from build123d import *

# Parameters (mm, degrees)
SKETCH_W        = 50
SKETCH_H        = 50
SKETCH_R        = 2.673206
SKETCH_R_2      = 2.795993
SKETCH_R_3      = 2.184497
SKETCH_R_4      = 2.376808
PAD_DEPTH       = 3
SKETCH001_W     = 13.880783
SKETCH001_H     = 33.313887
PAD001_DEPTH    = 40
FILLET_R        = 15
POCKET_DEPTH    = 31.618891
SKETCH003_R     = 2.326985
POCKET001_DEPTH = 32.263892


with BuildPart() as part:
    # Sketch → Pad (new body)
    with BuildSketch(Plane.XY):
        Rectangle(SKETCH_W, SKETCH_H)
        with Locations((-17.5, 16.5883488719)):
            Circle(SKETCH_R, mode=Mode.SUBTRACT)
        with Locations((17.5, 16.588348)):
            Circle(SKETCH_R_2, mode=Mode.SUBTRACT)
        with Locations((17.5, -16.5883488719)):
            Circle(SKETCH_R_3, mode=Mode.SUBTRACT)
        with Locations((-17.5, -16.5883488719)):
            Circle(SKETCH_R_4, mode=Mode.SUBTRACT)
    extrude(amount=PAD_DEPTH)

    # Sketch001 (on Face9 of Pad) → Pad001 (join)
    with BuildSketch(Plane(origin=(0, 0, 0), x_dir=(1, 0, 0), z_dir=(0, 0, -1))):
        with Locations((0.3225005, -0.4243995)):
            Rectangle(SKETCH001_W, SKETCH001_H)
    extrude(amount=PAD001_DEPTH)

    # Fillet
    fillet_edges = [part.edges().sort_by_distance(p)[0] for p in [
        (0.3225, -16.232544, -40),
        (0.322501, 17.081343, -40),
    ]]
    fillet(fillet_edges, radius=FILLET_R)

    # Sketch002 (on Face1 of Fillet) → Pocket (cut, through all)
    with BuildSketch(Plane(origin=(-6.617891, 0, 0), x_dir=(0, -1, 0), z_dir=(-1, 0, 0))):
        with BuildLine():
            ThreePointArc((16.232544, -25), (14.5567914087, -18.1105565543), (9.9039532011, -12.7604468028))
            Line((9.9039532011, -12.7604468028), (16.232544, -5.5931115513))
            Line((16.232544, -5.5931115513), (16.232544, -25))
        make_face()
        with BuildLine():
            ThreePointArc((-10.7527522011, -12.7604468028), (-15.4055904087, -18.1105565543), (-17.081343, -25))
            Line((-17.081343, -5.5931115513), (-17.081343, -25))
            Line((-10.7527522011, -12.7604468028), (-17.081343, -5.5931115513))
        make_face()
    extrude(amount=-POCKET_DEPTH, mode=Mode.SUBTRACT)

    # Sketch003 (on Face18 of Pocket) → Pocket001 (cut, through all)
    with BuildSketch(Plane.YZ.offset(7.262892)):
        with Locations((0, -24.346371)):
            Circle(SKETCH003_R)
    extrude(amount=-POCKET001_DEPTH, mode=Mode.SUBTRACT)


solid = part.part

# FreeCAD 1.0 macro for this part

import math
import FreeCAD as App
import Part
import Sketcher
from FreeCAD import Vector
Q = App.Units.Quantity


def edges_at(feature, points):
    """Names of the edges that pass closest to the given points."""
    edges = feature.Shape.Edges
    near = lambda p: min(range(len(edges)), key=lambda i: edges[i].distToShape(Part.Vertex(*p))[0])
    return sorted({f"Edge{near(p) + 1}" for p in points})

doc = App.newDocument("Part")
params = doc.addObject("Spreadsheet::Sheet", "Params")
for row, (alias, value) in enumerate([
    ("sketch1_width", "50 mm"),
    ("pad1_length", "3 mm"),
    ("pad2_length", "40 mm"),
    ("fillet_radius", "15 mm"),
    ("sketch3_radius", "15 mm"),
], start=1):
    params.set(f"A{row}", alias)
    params.set(f"B{row}", "=" + value)
    params.setAlias(f"B{row}", alias)

body = doc.addObject("PartDesign::Body", "Body")

# Sketch on XY plane
sketch1 = body.newObject("Sketcher::SketchObject", "Sketch")
sketch1.AttachmentSupport = (doc.getObject("XY_Plane"), [""])
sketch1.MapMode = "FlatFace"
sketch1.addGeometry([
    Part.LineSegment(Vector(-25, 25, 0), Vector(-25, -25, 0)),  # 0
    Part.LineSegment(Vector(-25, -25, 0), Vector(25, -25, 0)),  # 1
    Part.LineSegment(Vector(25, -25, 0), Vector(25, 25, 0)),  # 2
    Part.LineSegment(Vector(25, 25, 0), Vector(-25, 25, 0)),  # 3
    Part.Circle(Vector(-17.5, -16.6, 0), Vector(0, 0, 1), 2.4),  # 4
    Part.Circle(Vector(17.5, -16.6, 0), Vector(0, 0, 1), 2.2),  # 5
    Part.Circle(Vector(-17.5, 16.6, 0), Vector(0, 0, 1), 2.7),  # 6
    Part.Circle(Vector(17.5, 16.6, 0), Vector(0, 0, 1), 2.8),  # 7
], False)
sketch1.addConstraint([
    Sketcher.Constraint("Coincident", 0, 2, 1, 1),
    Sketcher.Constraint("Coincident", 1, 2, 2, 1),
    Sketcher.Constraint("Coincident", 2, 2, 3, 1),
    Sketcher.Constraint("Coincident", 3, 2, 0, 1),
    Sketcher.Constraint("Vertical", 0),
    Sketcher.Constraint("Horizontal", 1),
    Sketcher.Constraint("Vertical", 2),
    Sketcher.Constraint("Horizontal", 3),
    Sketcher.Constraint("Symmetric", 5, 3, 6, 3, -1, 1),
    Sketcher.Constraint("Symmetric", 4, 3, 7, 3, -1, 1),
    Sketcher.Constraint("Symmetric", 0, 2, 2, 2, -1, 1),
    Sketcher.Constraint("Symmetric", 4, 3, 5, 3, -2),
    Sketcher.Constraint("Equal", 3, 0),
    Sketcher.Constraint("DistanceX", 1, 1, 1, 2, Q("50 mm")),
    Sketcher.Constraint("DistanceX", 4, 3, 5, 3, Q("35 mm")),
    Sketcher.Constraint("Diameter", 4, Q("4.753616 mm")),
    Sketcher.Constraint("Diameter", 5, Q("4.368994 mm")),
    Sketcher.Constraint("Diameter", 6, Q("5.346412 mm")),
    Sketcher.Constraint("Diameter", 7, Q("5.591986 mm")),
    Sketcher.Constraint("DistanceY", 4, 3, -1, 1, Q("16.588349 mm")),
])
sketch1.setExpression("Constraints[13]", "Params.sketch1_width")
pad1 = body.newObject("PartDesign::Pad", "Pad")
pad1.Profile = sketch1
pad1.setExpression("Length", "Params.pad1_length")

# Sketch on XY plane
sketch2 = body.newObject("Sketcher::SketchObject", "Sketch001")
sketch2.AttachmentSupport = (doc.getObject("XY_Plane"), [""])
sketch2.MapMode = "FlatFace"
sketch2.addGeometry([
    Part.LineSegment(Vector(-7, -16, 0), Vector(-7, 17, 0)),
    Part.LineSegment(Vector(-7, 17, 0), Vector(7, 17, 0)),
    Part.LineSegment(Vector(7, 17, 0), Vector(7, -16, 0)),
    Part.LineSegment(Vector(7, -16, 0), Vector(-7, -16, 0)),
], False)
sketch2.addConstraint([
    Sketcher.Constraint("Coincident", 0, 2, 1, 1),
    Sketcher.Constraint("Coincident", 1, 2, 2, 1),
    Sketcher.Constraint("Coincident", 2, 2, 3, 1),
    Sketcher.Constraint("Coincident", 3, 2, 0, 1),
    Sketcher.Constraint("Vertical", 0),
    Sketcher.Constraint("Horizontal", 1),
    Sketcher.Constraint("Vertical", 2),
    Sketcher.Constraint("Horizontal", 3),
    Sketcher.Constraint("DistanceX", 1, 1, 1, 2, Q("13.880783 mm")),
    Sketcher.Constraint("DistanceY", 0, 1, 0, 2, Q("33.313887 mm")),
    Sketcher.Constraint("DistanceX", 0, 2, -1, 1, Q("6.617891 mm")),
    Sketcher.Constraint("DistanceY", -1, 1, 0, 2, Q("17.081343 mm")),
])
pad2 = body.newObject("PartDesign::Pad", "Pad001")
pad2.Profile = sketch2
pad2.setExpression("Length", "Params.pad2_length")
pad2.Reversed = True
doc.recompute()

fillet = body.newObject("PartDesign::Fillet", "Fillet")
fillet.Base = (pad2, edges_at(pad2, [(0.323, -16.233, -40), (0.323, 17.081, -40)]))
fillet.setExpression("Radius", "Params.fillet_radius")

# Sketch on YZ plane
sketch3 = body.newObject("Sketcher::SketchObject", "Sketch002")
sketch3.AttachmentSupport = (doc.getObject("YZ_Plane"), [""])
sketch3.MapMode = "FlatFace"
sketch3.AttachmentOffset = App.Placement(Vector(0, 0, -6.617891), App.Rotation())
sketch3.addGeometry([
    Part.ArcOfCircle(Part.Circle(Vector(-1, -25, 0), Vector(0, 0, 1), 15), math.radians(125), math.radians(180)),  # 0
    Part.LineSegment(Vector(-16, -25, 0), Vector(-16, -6, 0)),  # 1
    Part.LineSegment(Vector(-16, -6, 0), Vector(-10, -13, 0)),  # 2
    Part.ArcOfCircle(Part.Circle(Vector(2, -25, 0), Vector(0, 0, 1), 15), math.radians(0), math.radians(55)),  # 3
    Part.LineSegment(Vector(11, -13, 0), Vector(17, -6, 0)),  # 4
    Part.LineSegment(Vector(17, -6, 0), Vector(17, -25, 0)),  # 5
], False)
sketch3.addConstraint([
    Sketcher.Constraint("Tangent", 0, 2, 1, 1),
    Sketcher.Constraint("Coincident", 1, 2, 2, 1),
    Sketcher.Constraint("Coincident", 2, 2, 0, 1),
    Sketcher.Constraint("Coincident", 3, 2, 4, 1),
    Sketcher.Constraint("Coincident", 4, 2, 5, 1),
    Sketcher.Constraint("Tangent", 5, 2, 3, 1),
    Sketcher.Constraint("Vertical", 1),
    Sketcher.Constraint("Vertical", 5),
    Sketcher.Constraint("Equal", 0, 3),
    Sketcher.Constraint("Horizontal", 0, 3, 3, 3),
    Sketcher.Constraint("Horizontal", 2, 2, 3, 2),
    Sketcher.Constraint("Horizontal", 1, 2, 4, 2),
    Sketcher.Constraint("Radius", 0, Q("15 mm")),
    Sketcher.Constraint("DistanceY", 0, 3, -1, 1, Q("25 mm")),
    Sketcher.Constraint("DistanceY", 1, 1, 1, 2, Q("19.406888 mm")),
    Sketcher.Constraint("DistanceX", 1, 2, 2, 2, Q("6.328591 mm")),
    Sketcher.Constraint("DistanceX", 0, 3, -1, 1, Q("1.232544 mm")),
    Sketcher.Constraint("DistanceX", -1, 1, 3, 3, Q("2.081343 mm")),
])
sketch3.setExpression("Constraints[12]", "Params.sketch3_radius")
pocket1 = body.newObject("PartDesign::Pocket", "Pocket")
pocket1.Profile = sketch3
pocket1.Type = "ThroughAll"
pocket1.Reversed = True

# Sketch on YZ plane
sketch4 = body.newObject("Sketcher::SketchObject", "Sketch003")
sketch4.AttachmentSupport = (doc.getObject("YZ_Plane"), [""])
sketch4.MapMode = "FlatFace"
sketch4.AttachmentOffset = App.Placement(Vector(0, 0, 7.262892), App.Rotation())
sketch4.addGeometry(Part.Circle(Vector(0, -24.3, 0), Vector(0, 0, 1), 2.3), False)
sketch4.addConstraint([
    Sketcher.Constraint("PointOnObject", 0, 3, -2),
    Sketcher.Constraint("Diameter", 0, Q("4.65397 mm")),
    Sketcher.Constraint("DistanceY", 0, 3, -1, 1, Q("24.346371 mm")),
])
pocket2 = body.newObject("PartDesign::Pocket", "Pocket001")
pocket2.Profile = sketch4
pocket2.Type = "ThroughAll"

doc.recompute()
